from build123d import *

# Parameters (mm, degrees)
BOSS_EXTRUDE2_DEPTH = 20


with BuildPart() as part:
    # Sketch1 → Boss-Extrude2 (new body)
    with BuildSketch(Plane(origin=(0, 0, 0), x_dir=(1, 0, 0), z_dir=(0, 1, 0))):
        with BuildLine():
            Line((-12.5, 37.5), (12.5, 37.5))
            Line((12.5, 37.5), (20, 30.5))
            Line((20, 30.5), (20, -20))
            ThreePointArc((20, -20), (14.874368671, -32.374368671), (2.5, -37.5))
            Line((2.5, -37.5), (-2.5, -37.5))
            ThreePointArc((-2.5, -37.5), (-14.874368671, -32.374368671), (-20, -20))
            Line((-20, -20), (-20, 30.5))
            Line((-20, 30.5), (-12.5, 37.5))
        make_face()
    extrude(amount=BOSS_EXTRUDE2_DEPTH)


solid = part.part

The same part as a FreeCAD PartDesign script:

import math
import FreeCAD as App
import Part
import Sketcher
Q = App.Units.Quantity

doc = App.newDocument("Part")
body = doc.addObject("PartDesign::Body", "Body")

# Sketch on XZ plane
sketch1 = doc.addObject("Sketcher::SketchObject", "Sketch")
body.addObject(sketch1)
sketch1.AttachmentSupport = (doc.XZ_Plane, [""])
sketch1.MapMode = "FlatFace"
sketch1.addGeometry(Part.LineSegment(App.Vector(12.5, -37.5, 0), App.Vector(-12.5, -37.5, 0)), False)
sketch1.addGeometry(Part.LineSegment(App.Vector(-12.5, -37.5, 0), App.Vector(-20, -30.5, 0)), False)
sketch1.addGeometry(Part.LineSegment(App.Vector(-20, -30.5, 0), App.Vector(-20, 20, 0)), False)
sketch1.addGeometry(Part.ArcOfCircle(Part.Circle(App.Vector(-2.5, 20, 0), App.Vector(0, 0, 1), 17.5), math.radians(90), math.radians(180)), False)
sketch1.addGeometry(Part.LineSegment(App.Vector(-2.5, 37.5, 0), App.Vector(2.5, 37.5, 0)), False)
sketch1.addGeometry(Part.ArcOfCircle(Part.Circle(App.Vector(2.5, 20, 0), App.Vector(0, 0, 1), 17.5), math.radians(0), math.radians(90)), False)
sketch1.addGeometry(Part.LineSegment(App.Vector(20, 20, 0), App.Vector(20, -30.5, 0)), False)
sketch1.addGeometry(Part.LineSegment(App.Vector(20, -30.5, 0), App.Vector(12.5, -37.5, 0)), False)
sketch1.addConstraint(Sketcher.Constraint("Coincident", 0, 2, 1, 1))
sketch1.addConstraint(Sketcher.Constraint("Coincident", 1, 2, 2, 1))
sketch1.addConstraint(Sketcher.Constraint("Tangent", 2, 2, 3, 2))
sketch1.addConstraint(Sketcher.Constraint("Tangent", 3, 1, 4, 1))
sketch1.addConstraint(Sketcher.Constraint("Tangent", 4, 2, 5, 2))
sketch1.addConstraint(Sketcher.Constraint("Tangent", 5, 1, 6, 1))
sketch1.addConstraint(Sketcher.Constraint("Coincident", 6, 2, 7, 1))
sketch1.addConstraint(Sketcher.Constraint("Coincident", 7, 2, 0, 1))
sketch1.addConstraint(Sketcher.Constraint("Horizontal", 0))
sketch1.addConstraint(Sketcher.Constraint("Vertical", 2))
sketch1.addConstraint(Sketcher.Constraint("Horizontal", 4))
sketch1.addConstraint(Sketcher.Constraint("Vertical", 6))
sketch1.addConstraint(Sketcher.Constraint("Equal", 3, 5))
sketch1.addConstraint(Sketcher.Constraint("Symmetric", 1, 2, 6, 2, -2))
sketch1.addConstraint(Sketcher.Constraint("Equal", 1, 7))
sketch1.addConstraint(Sketcher.Constraint("Radius", 3, Q("17.5 mm")))
sketch1.addConstraint(Sketcher.Constraint("DistanceX", 0, 2, 0, 1, Q("25 mm")))
sketch1.addConstraint(Sketcher.Constraint("DistanceX", 4, 1, 4, 2, Q("5 mm")))
sketch1.addConstraint(Sketcher.Constraint("DistanceY", 2, 1, 2, 2, Q("50.5 mm")))
sketch1.addConstraint(Sketcher.Constraint("DistanceY", -1, 1, 3, 3, Q("20 mm")))
sketch1.addConstraint(Sketcher.Constraint("DistanceY", 0, 2, 1, 2, Q("7 mm")))
pad1 = doc.addObject("PartDesign::Pad", "Pad")
body.addObject(pad1)
pad1.Profile = sketch1
pad1.Length = 20
pad1.Reversed = True

doc.recompute()
